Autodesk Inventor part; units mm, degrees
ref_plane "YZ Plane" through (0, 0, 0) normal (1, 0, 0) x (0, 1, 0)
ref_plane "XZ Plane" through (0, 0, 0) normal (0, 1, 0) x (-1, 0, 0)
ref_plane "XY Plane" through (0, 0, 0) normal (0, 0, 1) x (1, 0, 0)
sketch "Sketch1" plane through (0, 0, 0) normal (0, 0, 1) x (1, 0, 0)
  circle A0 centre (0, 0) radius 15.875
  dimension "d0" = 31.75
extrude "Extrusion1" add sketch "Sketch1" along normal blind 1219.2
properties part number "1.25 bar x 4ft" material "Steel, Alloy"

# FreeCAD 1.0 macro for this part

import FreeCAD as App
import Part
import Sketcher
Q = App.Units.Quantity

doc = App.newDocument("Part")
body = doc.addObject("PartDesign::Body", "Body")

# Sketch on XY plane
sketch1 = doc.addObject("Sketcher::SketchObject", "Sketch")
body.addObject(sketch1)
sketch1.AttachmentSupport = (doc.XY_Plane, [""])
sketch1.MapMode = "FlatFace"
sketch1.addGeometry(Part.Circle(App.Vector(0, 0, 0), App.Vector(0, 0, 1), 15.875), False)
sketch1.addConstraint([
    Sketcher.Constraint("Coincident", 0, 3, -1, 1),
    Sketcher.Constraint("Diameter", 0, Q("1.25 in")),
])
pad1 = doc.addObject("PartDesign::Pad", "Pad")
body.addObject(pad1)
pad1.Profile = sketch1
pad1.Length = Q("48 in")

doc.recompute()
